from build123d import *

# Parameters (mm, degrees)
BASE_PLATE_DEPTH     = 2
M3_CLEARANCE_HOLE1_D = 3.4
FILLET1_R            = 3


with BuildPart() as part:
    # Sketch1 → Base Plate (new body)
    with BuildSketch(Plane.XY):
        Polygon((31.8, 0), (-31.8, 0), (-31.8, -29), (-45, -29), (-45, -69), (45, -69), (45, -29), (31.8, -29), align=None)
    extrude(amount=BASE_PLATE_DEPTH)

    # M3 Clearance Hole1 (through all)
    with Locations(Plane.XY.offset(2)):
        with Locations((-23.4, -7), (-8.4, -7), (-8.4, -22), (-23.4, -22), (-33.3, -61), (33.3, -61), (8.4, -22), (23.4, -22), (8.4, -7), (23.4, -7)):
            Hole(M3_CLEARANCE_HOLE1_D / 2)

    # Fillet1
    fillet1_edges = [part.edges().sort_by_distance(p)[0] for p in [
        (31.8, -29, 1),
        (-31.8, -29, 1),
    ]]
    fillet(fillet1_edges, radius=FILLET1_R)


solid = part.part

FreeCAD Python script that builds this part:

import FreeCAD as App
import Part
import Sketcher
from FreeCAD import Vector


def edges_at(feature, points):
    """Names of the edges that pass closest to the given points."""
    edges = feature.Shape.Edges
    near = lambda p: min(range(len(edges)), key=lambda i: edges[i].distToShape(Part.Vertex(*p))[0])
    return sorted({f"Edge{near(p) + 1}" for p in points})

doc = App.newDocument("Part")
body = doc.addObject("PartDesign::Body", "Body")

# Sketch on XY plane
sketch1 = body.newObject("Sketcher::SketchObject", "Sketch")
sketch1.AttachmentSupport = (doc.getObject("XY_Plane"), [""])
sketch1.MapMode = "FlatFace"
sketch1.addGeometry([
    Part.LineSegment(Vector(32, 0, 0), Vector(-32, 0, 0)),  # 0
    Part.LineSegment(Vector(-32, 0, 0), Vector(-32, -29, 0)),  # 1
    Part.LineSegment(Vector(-32, -29, 0), Vector(-45, -29, 0)),  # 2
    Part.LineSegment(Vector(-45, -29, 0), Vector(-45, -69, 0)),  # 3
    Part.LineSegment(Vector(-45, -69, 0), Vector(45, -69, 0)),  # 4
    Part.LineSegment(Vector(45, -69, 0), Vector(45, -29, 0)),  # 5
    Part.LineSegment(Vector(45, -29, 0), Vector(32, -29, 0)),  # 6
    Part.LineSegment(Vector(32, -29, 0), Vector(32, 0, 0)),  # 7
], False)
sketch1.addConstraint([
    Sketcher.Constraint("Coincident", 0, 2, 1, 1),
    Sketcher.Constraint("Coincident", 1, 2, 2, 1),
    Sketcher.Constraint("Coincident", 2, 2, 3, 1),
    Sketcher.Constraint("Coincident", 3, 2, 4, 1),
    Sketcher.Constraint("Coincident", 4, 2, 5, 1),
    Sketcher.Constraint("Coincident", 5, 2, 6, 1),
    Sketcher.Constraint("Coincident", 6, 2, 7, 1),
    Sketcher.Constraint("Coincident", 7, 2, 0, 1),
    Sketcher.Constraint("Horizontal", 0),
    Sketcher.Constraint("Vertical", 1),
    Sketcher.Constraint("Horizontal", 2),
    Sketcher.Constraint("Vertical", 3),
    Sketcher.Constraint("Horizontal", 4),
    Sketcher.Constraint("Vertical", 5),
    Sketcher.Constraint("Horizontal", 6),
    Sketcher.Constraint("Vertical", 7),
    Sketcher.Constraint("Symmetric", 0, 2, 7, 2, -1, 1),
    Sketcher.Constraint("Symmetric", 2, 2, 5, 2, -2),
    Sketcher.Constraint("DistanceX", 4, 1, 4, 2, 90.0),
    Sketcher.Constraint("DistanceY", 1, 2, 1, 1, 29.0),
    Sketcher.Constraint("DistanceY", 3, 2, 3, 1, 40.0),
    Sketcher.Constraint("DistanceX", 0, 2, 0, 1, 63.6),
])
pad1 = body.newObject("PartDesign::Pad", "Pad")
pad1.Profile = sketch1
pad1.Length = 2

# Sketch on XY plane
sketch2 = body.newObject("Sketcher::SketchObject", "Sketch001")
sketch2.AttachmentSupport = (doc.getObject("XY_Plane"), [""])
sketch2.MapMode = "FlatFace"
sketch2.AttachmentOffset = App.Placement(Vector(0, 0, 2), App.Rotation())
sketch2.addGeometry([
    Part.Circle(Vector(-23.4, -7, 0), Vector(0, 0, 1), 1.7),  # 0
    Part.Circle(Vector(-8.4, -7, 0), Vector(0, 0, 1), 1.7),  # 1
    Part.Circle(Vector(-8.4, -22, 0), Vector(0, 0, 1), 1.7),  # 2
    Part.Circle(Vector(-23.4, -22, 0), Vector(0, 0, 1), 1.7),  # 3
    Part.Circle(Vector(-33.3, -61, 0), Vector(0, 0, 1), 1.7),  # 4
    Part.Circle(Vector(33.3, -61, 0), Vector(0, 0, 1), 1.7),  # 5
    Part.Circle(Vector(8.4, -22, 0), Vector(0, 0, 1), 1.7),  # 6
    Part.Circle(Vector(23.4, -22, 0), Vector(0, 0, 1), 1.7),  # 7
    Part.Circle(Vector(8.4, -7, 0), Vector(0, 0, 1), 1.7),  # 8
    Part.Circle(Vector(23.4, -7, 0), Vector(0, 0, 1), 1.7),  # 9
], False)
sketch2.addConstraint([
    Sketcher.Constraint("Equal", 0, 1),
    Sketcher.Constraint("Equal", 1, 2),
    Sketcher.Constraint("Equal", 2, 3),
    Sketcher.Constraint("Equal", 3, 4),
    Sketcher.Constraint("Equal", 4, 5),
    Sketcher.Constraint("Equal", 5, 6),
    Sketcher.Constraint("Equal", 6, 7),
    Sketcher.Constraint("Equal", 7, 8),
    Sketcher.Constraint("Equal", 8, 9),
    Sketcher.Constraint("Symmetric", 4, 3, 5, 3, -2),
    Sketcher.Constraint("Symmetric", 2, 3, 6, 3, -2),
    Sketcher.Constraint("Symmetric", 3, 3, 7, 3, -2),
    Sketcher.Constraint("Symmetric", 1, 3, 8, 3, -2),
    Sketcher.Constraint("Symmetric", 0, 3, 9, 3, -2),
    Sketcher.Constraint("Horizontal", 0, 3, 1, 3),
    Sketcher.Constraint("Horizontal", 2, 3, 3, 3),
    Sketcher.Constraint("Vertical", 1, 3, 2, 3),
    Sketcher.Constraint("Vertical", 0, 3, 3, 3),
    Sketcher.Constraint("Diameter", 0, 3.4),
    Sketcher.Constraint("DistanceY", 0, 3, -1, 1, 7.0),
    Sketcher.Constraint("DistanceY", 2, 3, -1, 1, 22.0),
    Sketcher.Constraint("DistanceY", 4, 3, -1, 1, 61.0),
    Sketcher.Constraint("DistanceX", 0, 3, 1, 3, 15.0),
    Sketcher.Constraint("DistanceX", 0, 3, -1, 1, 23.4),
    Sketcher.Constraint("DistanceX", 4, 3, -1, 1, 33.3),
])
doc.recompute()
hole = body.newObject("PartDesign::Hole", "Hole")
hole.Profile = sketch2
hole.ThreadType = "None"
hole.Diameter = 3.4
hole.DepthType = "ThroughAll"
doc.recompute()

fillet = body.newObject("PartDesign::Fillet", "Fillet")
fillet.Base = (hole, edges_at(hole, [(31.8, -29, 1), (-31.8, -29, 1)]))
fillet.Radius = 3

doc.recompute()
